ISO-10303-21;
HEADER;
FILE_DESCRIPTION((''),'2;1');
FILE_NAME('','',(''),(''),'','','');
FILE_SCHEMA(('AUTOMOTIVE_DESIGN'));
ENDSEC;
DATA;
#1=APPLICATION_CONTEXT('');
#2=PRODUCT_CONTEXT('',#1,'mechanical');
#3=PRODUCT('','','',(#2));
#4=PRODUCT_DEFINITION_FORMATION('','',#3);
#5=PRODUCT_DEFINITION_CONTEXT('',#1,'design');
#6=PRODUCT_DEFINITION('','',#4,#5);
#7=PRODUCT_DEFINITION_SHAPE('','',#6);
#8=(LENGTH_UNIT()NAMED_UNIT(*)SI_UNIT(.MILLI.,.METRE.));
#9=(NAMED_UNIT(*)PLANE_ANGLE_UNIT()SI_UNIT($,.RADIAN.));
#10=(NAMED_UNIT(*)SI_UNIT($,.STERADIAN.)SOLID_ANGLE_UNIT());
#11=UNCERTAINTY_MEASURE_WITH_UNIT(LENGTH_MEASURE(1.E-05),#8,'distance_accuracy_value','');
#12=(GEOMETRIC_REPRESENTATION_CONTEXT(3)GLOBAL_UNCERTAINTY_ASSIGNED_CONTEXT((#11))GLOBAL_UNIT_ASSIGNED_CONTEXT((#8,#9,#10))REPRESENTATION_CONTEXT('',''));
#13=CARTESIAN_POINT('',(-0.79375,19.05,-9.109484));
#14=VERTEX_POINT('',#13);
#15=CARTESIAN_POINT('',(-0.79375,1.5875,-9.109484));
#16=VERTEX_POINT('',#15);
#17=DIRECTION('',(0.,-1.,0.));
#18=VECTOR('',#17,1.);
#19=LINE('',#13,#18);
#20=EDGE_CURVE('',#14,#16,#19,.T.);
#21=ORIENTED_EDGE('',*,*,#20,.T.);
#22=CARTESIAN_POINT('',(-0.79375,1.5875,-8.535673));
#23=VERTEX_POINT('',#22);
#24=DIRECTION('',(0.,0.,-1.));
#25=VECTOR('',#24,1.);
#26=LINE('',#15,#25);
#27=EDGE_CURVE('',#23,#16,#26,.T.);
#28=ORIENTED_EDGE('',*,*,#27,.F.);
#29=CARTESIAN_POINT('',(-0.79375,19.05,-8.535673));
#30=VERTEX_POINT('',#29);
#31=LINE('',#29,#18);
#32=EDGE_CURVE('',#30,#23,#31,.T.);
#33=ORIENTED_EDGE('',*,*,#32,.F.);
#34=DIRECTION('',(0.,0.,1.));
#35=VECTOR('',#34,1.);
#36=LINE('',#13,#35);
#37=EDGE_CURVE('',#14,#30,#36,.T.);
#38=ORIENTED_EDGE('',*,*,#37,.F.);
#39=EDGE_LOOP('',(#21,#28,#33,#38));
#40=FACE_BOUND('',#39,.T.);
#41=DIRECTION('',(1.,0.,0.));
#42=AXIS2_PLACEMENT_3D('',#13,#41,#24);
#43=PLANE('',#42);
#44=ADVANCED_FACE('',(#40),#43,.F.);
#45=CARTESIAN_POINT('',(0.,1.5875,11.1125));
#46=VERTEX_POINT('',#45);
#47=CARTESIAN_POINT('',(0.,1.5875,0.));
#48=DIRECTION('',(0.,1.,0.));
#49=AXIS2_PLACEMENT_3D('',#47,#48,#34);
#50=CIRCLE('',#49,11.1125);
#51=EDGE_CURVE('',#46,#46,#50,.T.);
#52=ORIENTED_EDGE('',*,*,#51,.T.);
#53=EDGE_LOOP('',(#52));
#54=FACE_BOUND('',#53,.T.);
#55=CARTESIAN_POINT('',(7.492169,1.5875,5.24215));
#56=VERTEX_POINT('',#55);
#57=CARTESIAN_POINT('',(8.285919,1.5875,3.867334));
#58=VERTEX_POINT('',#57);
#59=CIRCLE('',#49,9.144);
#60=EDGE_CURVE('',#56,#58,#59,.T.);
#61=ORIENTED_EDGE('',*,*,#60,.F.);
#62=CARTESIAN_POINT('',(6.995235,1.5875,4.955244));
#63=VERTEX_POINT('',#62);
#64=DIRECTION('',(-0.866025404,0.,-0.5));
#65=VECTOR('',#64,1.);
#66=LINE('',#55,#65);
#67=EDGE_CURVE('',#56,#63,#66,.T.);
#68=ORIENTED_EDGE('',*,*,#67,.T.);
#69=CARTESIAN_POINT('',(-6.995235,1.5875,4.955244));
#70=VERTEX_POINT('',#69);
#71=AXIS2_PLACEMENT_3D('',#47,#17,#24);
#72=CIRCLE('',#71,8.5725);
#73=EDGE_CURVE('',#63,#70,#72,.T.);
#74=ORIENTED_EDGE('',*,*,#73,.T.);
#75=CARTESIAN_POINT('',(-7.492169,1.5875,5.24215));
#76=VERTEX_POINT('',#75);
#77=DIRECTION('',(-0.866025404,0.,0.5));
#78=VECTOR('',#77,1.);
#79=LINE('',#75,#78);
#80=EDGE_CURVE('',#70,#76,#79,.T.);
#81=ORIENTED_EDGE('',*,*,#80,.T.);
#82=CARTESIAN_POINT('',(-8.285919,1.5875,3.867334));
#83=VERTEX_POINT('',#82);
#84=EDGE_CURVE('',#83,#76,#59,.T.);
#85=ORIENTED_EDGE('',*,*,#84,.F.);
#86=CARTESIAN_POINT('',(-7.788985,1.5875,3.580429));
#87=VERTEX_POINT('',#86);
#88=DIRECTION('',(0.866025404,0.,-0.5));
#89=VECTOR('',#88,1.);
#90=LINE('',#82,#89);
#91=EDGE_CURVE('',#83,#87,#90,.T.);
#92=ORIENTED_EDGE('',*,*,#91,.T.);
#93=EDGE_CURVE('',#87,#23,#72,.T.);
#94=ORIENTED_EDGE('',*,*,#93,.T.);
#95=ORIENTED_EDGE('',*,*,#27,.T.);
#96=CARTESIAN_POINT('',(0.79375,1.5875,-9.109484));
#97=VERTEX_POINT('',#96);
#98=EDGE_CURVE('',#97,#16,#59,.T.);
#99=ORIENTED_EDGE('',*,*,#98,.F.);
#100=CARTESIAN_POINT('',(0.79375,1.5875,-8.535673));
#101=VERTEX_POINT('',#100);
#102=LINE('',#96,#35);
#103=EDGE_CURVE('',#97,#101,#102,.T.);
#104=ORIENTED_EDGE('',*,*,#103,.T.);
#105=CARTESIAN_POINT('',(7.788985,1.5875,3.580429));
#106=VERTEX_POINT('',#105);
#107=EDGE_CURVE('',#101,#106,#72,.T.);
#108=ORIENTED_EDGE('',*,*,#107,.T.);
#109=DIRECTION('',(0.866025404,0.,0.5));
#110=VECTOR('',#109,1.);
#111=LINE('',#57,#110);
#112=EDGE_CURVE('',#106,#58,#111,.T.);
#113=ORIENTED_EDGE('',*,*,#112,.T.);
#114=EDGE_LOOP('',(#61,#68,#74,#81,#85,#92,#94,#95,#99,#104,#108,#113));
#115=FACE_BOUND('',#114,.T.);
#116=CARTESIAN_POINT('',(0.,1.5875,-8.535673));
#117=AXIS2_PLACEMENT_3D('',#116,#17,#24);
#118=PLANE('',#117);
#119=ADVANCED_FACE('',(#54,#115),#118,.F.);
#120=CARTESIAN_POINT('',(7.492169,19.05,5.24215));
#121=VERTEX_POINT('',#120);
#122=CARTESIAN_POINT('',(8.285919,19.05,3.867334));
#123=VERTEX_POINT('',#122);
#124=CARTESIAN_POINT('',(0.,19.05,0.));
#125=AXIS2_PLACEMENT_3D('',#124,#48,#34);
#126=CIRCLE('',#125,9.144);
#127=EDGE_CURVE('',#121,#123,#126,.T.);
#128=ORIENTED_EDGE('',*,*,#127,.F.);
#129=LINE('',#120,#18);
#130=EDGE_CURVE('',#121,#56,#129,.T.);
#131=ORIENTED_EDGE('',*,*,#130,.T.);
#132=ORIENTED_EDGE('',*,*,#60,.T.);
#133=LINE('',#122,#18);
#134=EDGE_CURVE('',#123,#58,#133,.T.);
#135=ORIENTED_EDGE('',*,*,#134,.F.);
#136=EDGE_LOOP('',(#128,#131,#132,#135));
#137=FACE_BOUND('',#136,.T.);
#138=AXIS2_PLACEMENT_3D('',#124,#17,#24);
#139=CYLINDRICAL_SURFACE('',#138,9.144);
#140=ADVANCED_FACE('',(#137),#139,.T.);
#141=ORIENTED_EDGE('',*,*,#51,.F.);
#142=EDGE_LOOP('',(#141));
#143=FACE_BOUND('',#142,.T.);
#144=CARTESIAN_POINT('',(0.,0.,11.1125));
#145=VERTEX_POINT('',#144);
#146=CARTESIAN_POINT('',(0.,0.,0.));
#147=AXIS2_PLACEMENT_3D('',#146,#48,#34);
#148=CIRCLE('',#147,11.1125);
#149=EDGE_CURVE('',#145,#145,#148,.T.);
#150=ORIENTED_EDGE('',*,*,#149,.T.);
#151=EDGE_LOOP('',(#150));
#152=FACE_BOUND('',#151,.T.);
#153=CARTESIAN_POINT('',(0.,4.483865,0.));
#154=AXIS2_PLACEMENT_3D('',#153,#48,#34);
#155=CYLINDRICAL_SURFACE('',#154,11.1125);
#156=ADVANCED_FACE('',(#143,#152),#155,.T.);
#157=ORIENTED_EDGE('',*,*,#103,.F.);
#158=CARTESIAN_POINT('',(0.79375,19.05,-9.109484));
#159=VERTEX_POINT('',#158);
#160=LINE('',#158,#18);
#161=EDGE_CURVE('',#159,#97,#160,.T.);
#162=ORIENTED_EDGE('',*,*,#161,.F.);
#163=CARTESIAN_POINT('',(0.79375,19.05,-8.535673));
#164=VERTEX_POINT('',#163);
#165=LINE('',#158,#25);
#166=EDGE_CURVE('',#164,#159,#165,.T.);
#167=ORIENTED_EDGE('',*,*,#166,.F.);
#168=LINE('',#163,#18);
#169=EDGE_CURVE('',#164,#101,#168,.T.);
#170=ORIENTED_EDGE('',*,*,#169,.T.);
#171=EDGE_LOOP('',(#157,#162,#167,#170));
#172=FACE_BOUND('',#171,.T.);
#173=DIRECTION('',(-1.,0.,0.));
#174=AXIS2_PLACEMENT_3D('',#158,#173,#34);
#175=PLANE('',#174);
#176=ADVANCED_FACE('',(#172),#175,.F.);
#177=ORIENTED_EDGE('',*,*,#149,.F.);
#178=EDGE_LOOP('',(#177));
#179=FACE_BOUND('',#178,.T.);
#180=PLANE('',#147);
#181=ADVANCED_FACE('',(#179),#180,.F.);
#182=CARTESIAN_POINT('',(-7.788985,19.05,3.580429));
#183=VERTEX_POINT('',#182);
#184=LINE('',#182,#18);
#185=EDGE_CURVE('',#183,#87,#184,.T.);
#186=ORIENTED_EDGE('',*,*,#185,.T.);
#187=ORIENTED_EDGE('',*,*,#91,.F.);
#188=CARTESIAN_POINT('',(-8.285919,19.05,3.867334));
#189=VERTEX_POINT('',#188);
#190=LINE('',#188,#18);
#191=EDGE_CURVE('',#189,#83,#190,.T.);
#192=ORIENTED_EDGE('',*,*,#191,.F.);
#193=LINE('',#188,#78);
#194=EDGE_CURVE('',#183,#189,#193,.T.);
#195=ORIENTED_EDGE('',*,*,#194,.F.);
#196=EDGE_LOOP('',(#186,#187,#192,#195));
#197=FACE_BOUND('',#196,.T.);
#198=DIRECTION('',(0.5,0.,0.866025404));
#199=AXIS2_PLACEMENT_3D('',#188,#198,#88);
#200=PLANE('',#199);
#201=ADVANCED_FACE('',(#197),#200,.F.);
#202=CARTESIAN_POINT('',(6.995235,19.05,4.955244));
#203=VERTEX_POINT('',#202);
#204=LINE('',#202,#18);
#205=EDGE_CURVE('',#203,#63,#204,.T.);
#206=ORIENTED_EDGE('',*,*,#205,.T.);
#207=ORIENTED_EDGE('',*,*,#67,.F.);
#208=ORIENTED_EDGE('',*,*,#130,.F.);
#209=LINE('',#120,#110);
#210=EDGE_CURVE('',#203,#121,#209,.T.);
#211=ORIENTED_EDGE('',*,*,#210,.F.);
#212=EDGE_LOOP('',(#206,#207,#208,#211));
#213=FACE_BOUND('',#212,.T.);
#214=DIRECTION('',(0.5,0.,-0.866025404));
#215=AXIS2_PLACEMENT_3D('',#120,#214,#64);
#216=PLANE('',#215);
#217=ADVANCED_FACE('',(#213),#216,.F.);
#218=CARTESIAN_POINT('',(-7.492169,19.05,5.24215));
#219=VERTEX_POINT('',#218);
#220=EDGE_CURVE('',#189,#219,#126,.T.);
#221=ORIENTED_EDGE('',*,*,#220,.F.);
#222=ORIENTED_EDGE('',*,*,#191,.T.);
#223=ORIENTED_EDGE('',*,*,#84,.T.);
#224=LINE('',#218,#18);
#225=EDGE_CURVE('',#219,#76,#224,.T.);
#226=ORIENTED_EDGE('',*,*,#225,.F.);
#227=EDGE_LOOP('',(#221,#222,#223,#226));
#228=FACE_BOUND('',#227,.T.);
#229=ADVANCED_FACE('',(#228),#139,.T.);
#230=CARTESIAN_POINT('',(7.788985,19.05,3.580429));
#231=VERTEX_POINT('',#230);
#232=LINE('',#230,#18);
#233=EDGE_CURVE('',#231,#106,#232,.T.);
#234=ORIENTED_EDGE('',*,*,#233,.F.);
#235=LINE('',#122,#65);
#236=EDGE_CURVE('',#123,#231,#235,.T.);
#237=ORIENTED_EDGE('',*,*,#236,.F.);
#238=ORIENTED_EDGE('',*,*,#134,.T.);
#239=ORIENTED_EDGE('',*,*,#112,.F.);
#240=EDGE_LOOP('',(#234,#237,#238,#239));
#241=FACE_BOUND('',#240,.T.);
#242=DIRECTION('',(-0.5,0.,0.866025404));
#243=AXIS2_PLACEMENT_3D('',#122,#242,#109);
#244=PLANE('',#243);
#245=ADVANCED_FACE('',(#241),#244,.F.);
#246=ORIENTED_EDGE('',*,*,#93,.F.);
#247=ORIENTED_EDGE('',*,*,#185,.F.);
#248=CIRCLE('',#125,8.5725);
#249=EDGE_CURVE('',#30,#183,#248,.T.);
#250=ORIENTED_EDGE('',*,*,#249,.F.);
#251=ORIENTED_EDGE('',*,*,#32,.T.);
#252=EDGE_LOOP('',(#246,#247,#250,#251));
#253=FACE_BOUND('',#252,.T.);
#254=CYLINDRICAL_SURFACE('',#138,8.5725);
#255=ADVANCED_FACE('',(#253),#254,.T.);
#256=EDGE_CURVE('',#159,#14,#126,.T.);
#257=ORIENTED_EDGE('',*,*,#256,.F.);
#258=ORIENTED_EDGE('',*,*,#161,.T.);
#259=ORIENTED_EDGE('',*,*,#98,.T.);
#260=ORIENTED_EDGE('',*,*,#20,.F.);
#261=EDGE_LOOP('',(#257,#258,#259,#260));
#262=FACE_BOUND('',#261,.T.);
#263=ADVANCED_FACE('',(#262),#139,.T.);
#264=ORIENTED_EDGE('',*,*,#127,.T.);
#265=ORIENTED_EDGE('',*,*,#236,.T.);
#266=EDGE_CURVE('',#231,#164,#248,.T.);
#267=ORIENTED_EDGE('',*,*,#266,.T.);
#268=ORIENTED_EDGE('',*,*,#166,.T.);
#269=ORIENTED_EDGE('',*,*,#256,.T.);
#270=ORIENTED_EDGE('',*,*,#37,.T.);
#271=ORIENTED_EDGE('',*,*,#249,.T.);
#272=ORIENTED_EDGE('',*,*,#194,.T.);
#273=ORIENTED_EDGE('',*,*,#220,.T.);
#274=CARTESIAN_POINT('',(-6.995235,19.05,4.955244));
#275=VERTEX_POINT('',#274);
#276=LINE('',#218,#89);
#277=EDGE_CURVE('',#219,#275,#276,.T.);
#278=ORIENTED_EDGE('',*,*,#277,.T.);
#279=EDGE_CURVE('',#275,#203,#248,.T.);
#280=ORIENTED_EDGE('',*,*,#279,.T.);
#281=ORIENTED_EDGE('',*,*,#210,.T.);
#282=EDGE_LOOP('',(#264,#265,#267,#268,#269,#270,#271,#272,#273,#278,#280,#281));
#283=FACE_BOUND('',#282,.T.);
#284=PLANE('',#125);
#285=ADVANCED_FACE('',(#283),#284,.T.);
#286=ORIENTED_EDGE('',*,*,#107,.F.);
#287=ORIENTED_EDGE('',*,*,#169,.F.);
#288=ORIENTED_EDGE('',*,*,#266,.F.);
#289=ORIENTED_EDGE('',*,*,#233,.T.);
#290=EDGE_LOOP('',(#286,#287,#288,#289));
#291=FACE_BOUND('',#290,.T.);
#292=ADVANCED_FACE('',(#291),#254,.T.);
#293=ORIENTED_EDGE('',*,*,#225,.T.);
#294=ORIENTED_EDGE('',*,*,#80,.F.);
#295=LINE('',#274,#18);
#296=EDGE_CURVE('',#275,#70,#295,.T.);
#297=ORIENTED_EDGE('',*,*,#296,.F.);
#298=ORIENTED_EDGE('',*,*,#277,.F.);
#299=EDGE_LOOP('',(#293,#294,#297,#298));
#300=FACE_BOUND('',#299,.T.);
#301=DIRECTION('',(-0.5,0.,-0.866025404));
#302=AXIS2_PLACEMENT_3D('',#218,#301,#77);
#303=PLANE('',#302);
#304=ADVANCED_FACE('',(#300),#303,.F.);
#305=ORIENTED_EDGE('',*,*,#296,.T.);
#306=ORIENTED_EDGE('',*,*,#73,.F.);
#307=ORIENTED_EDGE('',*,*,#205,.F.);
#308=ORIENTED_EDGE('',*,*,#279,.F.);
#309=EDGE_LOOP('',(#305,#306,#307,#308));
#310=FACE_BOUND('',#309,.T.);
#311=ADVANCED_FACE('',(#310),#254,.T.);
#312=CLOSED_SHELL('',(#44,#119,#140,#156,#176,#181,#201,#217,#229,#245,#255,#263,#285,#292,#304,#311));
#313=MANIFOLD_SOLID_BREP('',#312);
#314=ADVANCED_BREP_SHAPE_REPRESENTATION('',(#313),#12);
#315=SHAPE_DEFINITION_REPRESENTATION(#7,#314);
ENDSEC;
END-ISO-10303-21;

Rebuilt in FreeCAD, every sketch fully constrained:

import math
import FreeCAD as App
import Part
import Sketcher

V = App.Vector
Q = App.Units.Quantity


def add_polygon(sketch, points):
    """Adds a closed chain of lines whose ends are joined by coincident constraints."""
    first, n = sketch.GeometryCount, len(points)
    for a, b in zip(points, points[1:] + points[:1]):
        sketch.addGeometry(Part.LineSegment(App.Vector(*a, 0), App.Vector(*b, 0)), False)
    for i in range(n):
        sketch.addConstraint(Sketcher.Constraint("Coincident", first + i, 2, first + (i + 1) % n, 1))

doc = App.newDocument("Part")
body = doc.addObject("PartDesign::Body", "Body")

# Sketch on XZ plane
sketch1 = doc.addObject("Sketcher::SketchObject", "Sketch")
body.addObject(sketch1)
sketch1.AttachmentSupport = (doc.XZ_Plane, [""])
sketch1.MapMode = "FlatFace"
sketch1.addGeometry([
    Part.LineSegment(V(-0.8, -9.1, 0), V(-0.8, -8.5, 0)),  # 0
    Part.ArcOfCircle(Part.Circle(V(0, 0, 0), V(0, 0, 1), 8.6), math.radians(155), math.radians(265)),  # 1
    Part.LineSegment(V(-7.8, 3.6, 0), V(-8.3, 3.9, 0)),  # 2
    Part.ArcOfCircle(Part.Circle(V(0, 0, 0), V(0, 0, 1), 9.1), math.radians(145.02), math.radians(154.98)),  # 3
    Part.LineSegment(V(-7.5, 5.2, 0), V(-7, 5, 0)),  # 4
    Part.ArcOfCircle(Part.Circle(V(0, 0, 0), V(0, 0, 1), 8.6), math.radians(35), math.radians(145)),  # 5
    Part.LineSegment(V(7, 5, 0), V(7.5, 5.2, 0)),  # 6
    Part.ArcOfCircle(Part.Circle(V(0, 0, 0), V(0, 0, 1), 9.1), math.radians(25.02), math.radians(34.98)),  # 7
    Part.LineSegment(V(8.3, 3.9, 0), V(7.8, 3.6, 0)),  # 8
    Part.ArcOfCircle(Part.Circle(V(0, 0, 0), V(0, 0, 1), 8.6), math.radians(-85), math.radians(25)),  # 9
    Part.LineSegment(V(0.8, -8.5, 0), V(0.8, -9.1, 0)),  # 10
    Part.ArcOfCircle(Part.Circle(V(0, 0, 0), V(0, 0, 1), 9.1), math.radians(-94.98), math.radians(-85.02)),  # 11
], False)
sketch1.addConstraint([
    Sketcher.Constraint("Coincident", 0, 2, 1, 2),
    Sketcher.Constraint("Coincident", 1, 1, 2, 1),
    Sketcher.Constraint("Coincident", 2, 2, 3, 2),
    Sketcher.Constraint("Coincident", 3, 1, 4, 1),
    Sketcher.Constraint("Coincident", 4, 2, 5, 2),
    Sketcher.Constraint("Coincident", 5, 1, 6, 1),
    Sketcher.Constraint("Coincident", 6, 2, 7, 2),
    Sketcher.Constraint("Coincident", 7, 1, 8, 1),
    Sketcher.Constraint("Coincident", 8, 2, 9, 2),
    Sketcher.Constraint("Coincident", 9, 1, 10, 1),
    Sketcher.Constraint("Coincident", 10, 2, 11, 2),
    Sketcher.Constraint("Coincident", 11, 1, 0, 1),
    Sketcher.Constraint("Vertical", 0),
    Sketcher.Constraint("Vertical", 10),
    Sketcher.Constraint("Coincident", 1, 3, -1, 1),
    Sketcher.Constraint("Coincident", 3, 3, -1, 1),
    Sketcher.Constraint("Coincident", 5, 3, -1, 1),
    Sketcher.Constraint("Coincident", 7, 3, -1, 1),
    Sketcher.Constraint("Coincident", 9, 3, -1, 1),
    Sketcher.Constraint("Coincident", 11, 3, -1, 1),
    Sketcher.Constraint("Equal", 1, 5),
    Sketcher.Constraint("Equal", 3, 7),
    Sketcher.Constraint("Equal", 5, 9),
    Sketcher.Constraint("Equal", 7, 11),
    Sketcher.Constraint("Parallel", 2, 4),
    Sketcher.Constraint("Parallel", 6, 8),
    Sketcher.Constraint("Horizontal", 4, 2, 5, 1),
    Sketcher.Constraint("Horizontal", 3, 1, 6, 2),
    Sketcher.Constraint("Horizontal", 2, 2, 7, 1),
    Sketcher.Constraint("Horizontal", 0, 2, 9, 1),
    Sketcher.Constraint("Equal", 2, 4),
    Sketcher.Constraint("Radius", 3, Q("0.36 in")),
    Sketcher.Constraint("Angle", 2, Q("150 deg")),
    Sketcher.Constraint("Radius", 1, Q("0.3375 in")),
    Sketcher.Constraint("DistanceX", 0, 2, -1, 1, Q("0.03125 in")),
    Sketcher.Constraint("DistanceX", 2, 2, 3, 1, Q("0.03125 in")),
])
pad1 = doc.addObject("PartDesign::Pad", "Pad")
body.addObject(pad1)
pad1.Profile = sketch1
pad1.Length = Q("0.75 in")
pad1.Reversed = True

# Sketch on YZ plane
sketch2 = doc.addObject("Sketcher::SketchObject", "Sketch001")
body.addObject(sketch2)
sketch2.AttachmentSupport = (doc.YZ_Plane, [""])
sketch2.MapMode = "FlatFace"
add_polygon(sketch2, [(1.6, -8.5), (0, -8.5), (0, -9.1), (1.6, -9.1)])  # lines 0-3
sketch2.addConstraint([
    Sketcher.Constraint("Horizontal", 0),
    Sketcher.Constraint("Vertical", 1),
    Sketcher.Constraint("Horizontal", 2),
    Sketcher.Constraint("Vertical", 3),
    Sketcher.Constraint("PointOnObject", 0, 2, -2),
    Sketcher.Constraint("DistanceX", 0, 2, 0, 1, Q("0.0625 in")),
    Sketcher.Constraint("DistanceY", 1, 2, -1, 1, Q("0.36 in")),
    Sketcher.Constraint("DistanceY", 1, 2, 1, 1, Q("0.608327 mm")),
])
groove = doc.addObject("PartDesign::Groove", "Groove")
body.addObject(groove)
groove.Profile = sketch2
groove.ReferenceAxis = (sketch2, ["H_Axis"])
groove.Angle = 360

# Sketch on YZ plane
sketch3 = doc.addObject("Sketcher::SketchObject", "Sketch002")
body.addObject(sketch3)
sketch3.AttachmentSupport = (doc.YZ_Plane, [""])
sketch3.MapMode = "FlatFace"
add_polygon(sketch3, [(1.6, -8.5), (0, -8.5), (0, -11.1), (1.6, -11.1)])  # lines 0-3
sketch3.addConstraint([
    Sketcher.Constraint("Horizontal", 0),
    Sketcher.Constraint("Vertical", 1),
    Sketcher.Constraint("Horizontal", 2),
    Sketcher.Constraint("Vertical", 3),
    Sketcher.Constraint("PointOnObject", 0, 2, -2),
    Sketcher.Constraint("DistanceX", 0, 2, 0, 1, Q("0.0625 in")),
    Sketcher.Constraint("DistanceY", 1, 2, -1, 1, Q("0.4375 in")),
    Sketcher.Constraint("DistanceY", 1, 2, 1, 1, Q("2.576827 mm")),
])
revolution = doc.addObject("PartDesign::Revolution", "Revolution")
body.addObject(revolution)
revolution.Profile = sketch3
revolution.ReferenceAxis = (sketch3, ["H_Axis"])
revolution.Angle = 360

doc.recompute()
